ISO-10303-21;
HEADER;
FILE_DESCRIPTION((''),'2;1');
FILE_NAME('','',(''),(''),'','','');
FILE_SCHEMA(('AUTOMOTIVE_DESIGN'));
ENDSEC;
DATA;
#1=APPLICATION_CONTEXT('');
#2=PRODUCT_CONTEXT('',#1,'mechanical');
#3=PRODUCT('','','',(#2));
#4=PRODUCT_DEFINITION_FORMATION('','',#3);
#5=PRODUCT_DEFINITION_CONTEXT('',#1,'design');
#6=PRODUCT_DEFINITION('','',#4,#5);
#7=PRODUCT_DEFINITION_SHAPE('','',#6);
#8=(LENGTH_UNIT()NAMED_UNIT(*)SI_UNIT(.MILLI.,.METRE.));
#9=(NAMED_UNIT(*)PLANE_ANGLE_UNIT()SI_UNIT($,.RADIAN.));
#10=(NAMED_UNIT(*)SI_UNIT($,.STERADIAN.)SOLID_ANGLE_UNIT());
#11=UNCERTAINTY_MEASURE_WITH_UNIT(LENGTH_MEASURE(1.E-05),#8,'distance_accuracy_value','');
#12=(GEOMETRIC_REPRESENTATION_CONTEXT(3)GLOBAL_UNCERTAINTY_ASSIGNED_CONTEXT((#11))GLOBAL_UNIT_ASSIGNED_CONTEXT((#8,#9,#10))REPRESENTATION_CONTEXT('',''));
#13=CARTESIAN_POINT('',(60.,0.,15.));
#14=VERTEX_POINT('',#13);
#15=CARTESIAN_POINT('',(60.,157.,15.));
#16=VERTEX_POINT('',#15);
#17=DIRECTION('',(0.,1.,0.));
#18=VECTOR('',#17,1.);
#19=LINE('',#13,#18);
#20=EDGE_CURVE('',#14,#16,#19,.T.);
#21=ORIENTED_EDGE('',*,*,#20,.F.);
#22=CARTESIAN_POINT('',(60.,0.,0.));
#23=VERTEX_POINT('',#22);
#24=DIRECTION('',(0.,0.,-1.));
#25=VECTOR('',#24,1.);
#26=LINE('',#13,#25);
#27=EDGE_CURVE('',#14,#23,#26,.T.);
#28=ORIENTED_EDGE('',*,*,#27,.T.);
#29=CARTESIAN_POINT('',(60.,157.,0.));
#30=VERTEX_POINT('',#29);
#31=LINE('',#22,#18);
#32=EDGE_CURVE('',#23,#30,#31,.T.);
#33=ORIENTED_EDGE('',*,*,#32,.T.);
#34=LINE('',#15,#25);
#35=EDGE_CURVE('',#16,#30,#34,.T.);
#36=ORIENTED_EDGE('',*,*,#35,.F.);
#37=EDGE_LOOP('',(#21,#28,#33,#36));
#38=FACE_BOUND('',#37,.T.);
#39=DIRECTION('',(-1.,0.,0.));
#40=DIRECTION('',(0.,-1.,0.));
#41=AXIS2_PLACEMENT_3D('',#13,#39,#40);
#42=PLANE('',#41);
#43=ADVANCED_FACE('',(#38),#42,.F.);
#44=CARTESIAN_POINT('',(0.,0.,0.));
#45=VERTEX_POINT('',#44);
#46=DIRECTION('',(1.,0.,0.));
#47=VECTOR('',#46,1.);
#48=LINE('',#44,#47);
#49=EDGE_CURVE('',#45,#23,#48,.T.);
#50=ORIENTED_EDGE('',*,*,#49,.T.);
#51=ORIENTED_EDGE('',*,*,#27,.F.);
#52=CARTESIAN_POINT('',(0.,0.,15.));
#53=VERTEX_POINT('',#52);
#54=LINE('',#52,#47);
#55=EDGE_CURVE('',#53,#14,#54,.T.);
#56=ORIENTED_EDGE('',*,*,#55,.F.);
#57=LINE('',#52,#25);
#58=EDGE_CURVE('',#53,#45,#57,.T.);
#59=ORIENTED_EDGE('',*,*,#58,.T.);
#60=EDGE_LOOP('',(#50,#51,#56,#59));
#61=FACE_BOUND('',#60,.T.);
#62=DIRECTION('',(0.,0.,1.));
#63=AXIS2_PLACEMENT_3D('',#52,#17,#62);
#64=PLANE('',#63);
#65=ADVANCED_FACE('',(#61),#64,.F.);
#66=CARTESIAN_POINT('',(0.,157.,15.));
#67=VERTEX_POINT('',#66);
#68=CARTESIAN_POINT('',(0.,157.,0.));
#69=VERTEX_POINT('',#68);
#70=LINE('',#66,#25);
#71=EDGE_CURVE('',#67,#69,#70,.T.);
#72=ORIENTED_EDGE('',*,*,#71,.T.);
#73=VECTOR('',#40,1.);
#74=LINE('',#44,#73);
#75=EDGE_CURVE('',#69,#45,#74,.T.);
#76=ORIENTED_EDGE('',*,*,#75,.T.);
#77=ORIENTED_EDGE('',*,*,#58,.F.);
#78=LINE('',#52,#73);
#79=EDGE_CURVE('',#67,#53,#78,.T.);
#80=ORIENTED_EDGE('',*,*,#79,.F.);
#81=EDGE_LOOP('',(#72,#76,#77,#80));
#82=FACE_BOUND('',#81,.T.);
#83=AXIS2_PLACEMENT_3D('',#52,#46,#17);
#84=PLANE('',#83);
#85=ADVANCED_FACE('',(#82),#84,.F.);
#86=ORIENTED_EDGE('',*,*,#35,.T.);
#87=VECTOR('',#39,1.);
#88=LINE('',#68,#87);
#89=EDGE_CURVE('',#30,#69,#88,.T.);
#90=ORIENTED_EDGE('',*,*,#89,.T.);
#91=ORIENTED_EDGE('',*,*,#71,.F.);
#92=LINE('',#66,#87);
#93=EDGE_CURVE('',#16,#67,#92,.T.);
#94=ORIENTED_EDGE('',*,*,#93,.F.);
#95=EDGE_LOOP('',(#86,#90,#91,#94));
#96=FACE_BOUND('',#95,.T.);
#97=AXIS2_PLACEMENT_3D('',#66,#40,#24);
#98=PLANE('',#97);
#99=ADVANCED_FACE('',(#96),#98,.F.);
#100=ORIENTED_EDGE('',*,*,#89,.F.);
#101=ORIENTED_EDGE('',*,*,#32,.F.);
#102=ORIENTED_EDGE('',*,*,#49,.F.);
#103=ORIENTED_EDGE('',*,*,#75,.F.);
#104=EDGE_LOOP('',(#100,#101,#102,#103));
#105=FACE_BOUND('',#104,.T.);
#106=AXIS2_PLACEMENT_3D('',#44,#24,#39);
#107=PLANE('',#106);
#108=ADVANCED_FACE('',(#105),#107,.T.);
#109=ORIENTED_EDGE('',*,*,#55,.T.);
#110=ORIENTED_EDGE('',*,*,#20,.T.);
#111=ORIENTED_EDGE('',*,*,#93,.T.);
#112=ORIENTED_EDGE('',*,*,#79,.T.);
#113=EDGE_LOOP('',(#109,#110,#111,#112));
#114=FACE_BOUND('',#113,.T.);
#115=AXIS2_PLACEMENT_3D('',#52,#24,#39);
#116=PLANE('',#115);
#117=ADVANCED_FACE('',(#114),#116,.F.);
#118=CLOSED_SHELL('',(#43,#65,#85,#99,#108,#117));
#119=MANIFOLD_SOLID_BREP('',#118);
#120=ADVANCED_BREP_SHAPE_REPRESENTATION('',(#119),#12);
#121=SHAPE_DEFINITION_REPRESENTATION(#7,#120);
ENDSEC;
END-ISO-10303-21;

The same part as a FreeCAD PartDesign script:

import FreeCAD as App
import Part
import Sketcher
Q = App.Units.Quantity

doc = App.newDocument("Part")
body = doc.addObject("PartDesign::Body", "Body")

# Sketch on XY plane
sketch1 = doc.addObject("Sketcher::SketchObject", "Sketch")
body.addObject(sketch1)
sketch1.AttachmentSupport = (doc.XY_Plane, [""])
sketch1.MapMode = "FlatFace"
sketch1.addGeometry([
    Part.LineSegment(App.Vector(0, 157, 0), App.Vector(0, 0, 0)),
    Part.LineSegment(App.Vector(0, 0, 0), App.Vector(60, 0, 0)),
    Part.LineSegment(App.Vector(60, 0, 0), App.Vector(60, 157, 0)),
    Part.LineSegment(App.Vector(60, 157, 0), App.Vector(0, 157, 0)),
], False)
sketch1.addConstraint([
    Sketcher.Constraint("Coincident", 0, 2, 1, 1),
    Sketcher.Constraint("Coincident", 1, 2, 2, 1),
    Sketcher.Constraint("Coincident", 2, 2, 3, 1),
    Sketcher.Constraint("Coincident", 3, 2, 0, 1),
    Sketcher.Constraint("Vertical", 0),
    Sketcher.Constraint("Horizontal", 1),
    Sketcher.Constraint("Vertical", 2),
    Sketcher.Constraint("Horizontal", 3),
    Sketcher.Constraint("Coincident", 0, 2, -1, 1),
    Sketcher.Constraint("DistanceX", 1, 1, 1, 2, Q("60 mm")),
    Sketcher.Constraint("DistanceY", 0, 2, 0, 1, Q("157 mm")),
])
pad1 = doc.addObject("PartDesign::Pad", "Pad")
body.addObject(pad1)
pad1.Profile = sketch1
pad1.Length = 15

doc.recompute()
